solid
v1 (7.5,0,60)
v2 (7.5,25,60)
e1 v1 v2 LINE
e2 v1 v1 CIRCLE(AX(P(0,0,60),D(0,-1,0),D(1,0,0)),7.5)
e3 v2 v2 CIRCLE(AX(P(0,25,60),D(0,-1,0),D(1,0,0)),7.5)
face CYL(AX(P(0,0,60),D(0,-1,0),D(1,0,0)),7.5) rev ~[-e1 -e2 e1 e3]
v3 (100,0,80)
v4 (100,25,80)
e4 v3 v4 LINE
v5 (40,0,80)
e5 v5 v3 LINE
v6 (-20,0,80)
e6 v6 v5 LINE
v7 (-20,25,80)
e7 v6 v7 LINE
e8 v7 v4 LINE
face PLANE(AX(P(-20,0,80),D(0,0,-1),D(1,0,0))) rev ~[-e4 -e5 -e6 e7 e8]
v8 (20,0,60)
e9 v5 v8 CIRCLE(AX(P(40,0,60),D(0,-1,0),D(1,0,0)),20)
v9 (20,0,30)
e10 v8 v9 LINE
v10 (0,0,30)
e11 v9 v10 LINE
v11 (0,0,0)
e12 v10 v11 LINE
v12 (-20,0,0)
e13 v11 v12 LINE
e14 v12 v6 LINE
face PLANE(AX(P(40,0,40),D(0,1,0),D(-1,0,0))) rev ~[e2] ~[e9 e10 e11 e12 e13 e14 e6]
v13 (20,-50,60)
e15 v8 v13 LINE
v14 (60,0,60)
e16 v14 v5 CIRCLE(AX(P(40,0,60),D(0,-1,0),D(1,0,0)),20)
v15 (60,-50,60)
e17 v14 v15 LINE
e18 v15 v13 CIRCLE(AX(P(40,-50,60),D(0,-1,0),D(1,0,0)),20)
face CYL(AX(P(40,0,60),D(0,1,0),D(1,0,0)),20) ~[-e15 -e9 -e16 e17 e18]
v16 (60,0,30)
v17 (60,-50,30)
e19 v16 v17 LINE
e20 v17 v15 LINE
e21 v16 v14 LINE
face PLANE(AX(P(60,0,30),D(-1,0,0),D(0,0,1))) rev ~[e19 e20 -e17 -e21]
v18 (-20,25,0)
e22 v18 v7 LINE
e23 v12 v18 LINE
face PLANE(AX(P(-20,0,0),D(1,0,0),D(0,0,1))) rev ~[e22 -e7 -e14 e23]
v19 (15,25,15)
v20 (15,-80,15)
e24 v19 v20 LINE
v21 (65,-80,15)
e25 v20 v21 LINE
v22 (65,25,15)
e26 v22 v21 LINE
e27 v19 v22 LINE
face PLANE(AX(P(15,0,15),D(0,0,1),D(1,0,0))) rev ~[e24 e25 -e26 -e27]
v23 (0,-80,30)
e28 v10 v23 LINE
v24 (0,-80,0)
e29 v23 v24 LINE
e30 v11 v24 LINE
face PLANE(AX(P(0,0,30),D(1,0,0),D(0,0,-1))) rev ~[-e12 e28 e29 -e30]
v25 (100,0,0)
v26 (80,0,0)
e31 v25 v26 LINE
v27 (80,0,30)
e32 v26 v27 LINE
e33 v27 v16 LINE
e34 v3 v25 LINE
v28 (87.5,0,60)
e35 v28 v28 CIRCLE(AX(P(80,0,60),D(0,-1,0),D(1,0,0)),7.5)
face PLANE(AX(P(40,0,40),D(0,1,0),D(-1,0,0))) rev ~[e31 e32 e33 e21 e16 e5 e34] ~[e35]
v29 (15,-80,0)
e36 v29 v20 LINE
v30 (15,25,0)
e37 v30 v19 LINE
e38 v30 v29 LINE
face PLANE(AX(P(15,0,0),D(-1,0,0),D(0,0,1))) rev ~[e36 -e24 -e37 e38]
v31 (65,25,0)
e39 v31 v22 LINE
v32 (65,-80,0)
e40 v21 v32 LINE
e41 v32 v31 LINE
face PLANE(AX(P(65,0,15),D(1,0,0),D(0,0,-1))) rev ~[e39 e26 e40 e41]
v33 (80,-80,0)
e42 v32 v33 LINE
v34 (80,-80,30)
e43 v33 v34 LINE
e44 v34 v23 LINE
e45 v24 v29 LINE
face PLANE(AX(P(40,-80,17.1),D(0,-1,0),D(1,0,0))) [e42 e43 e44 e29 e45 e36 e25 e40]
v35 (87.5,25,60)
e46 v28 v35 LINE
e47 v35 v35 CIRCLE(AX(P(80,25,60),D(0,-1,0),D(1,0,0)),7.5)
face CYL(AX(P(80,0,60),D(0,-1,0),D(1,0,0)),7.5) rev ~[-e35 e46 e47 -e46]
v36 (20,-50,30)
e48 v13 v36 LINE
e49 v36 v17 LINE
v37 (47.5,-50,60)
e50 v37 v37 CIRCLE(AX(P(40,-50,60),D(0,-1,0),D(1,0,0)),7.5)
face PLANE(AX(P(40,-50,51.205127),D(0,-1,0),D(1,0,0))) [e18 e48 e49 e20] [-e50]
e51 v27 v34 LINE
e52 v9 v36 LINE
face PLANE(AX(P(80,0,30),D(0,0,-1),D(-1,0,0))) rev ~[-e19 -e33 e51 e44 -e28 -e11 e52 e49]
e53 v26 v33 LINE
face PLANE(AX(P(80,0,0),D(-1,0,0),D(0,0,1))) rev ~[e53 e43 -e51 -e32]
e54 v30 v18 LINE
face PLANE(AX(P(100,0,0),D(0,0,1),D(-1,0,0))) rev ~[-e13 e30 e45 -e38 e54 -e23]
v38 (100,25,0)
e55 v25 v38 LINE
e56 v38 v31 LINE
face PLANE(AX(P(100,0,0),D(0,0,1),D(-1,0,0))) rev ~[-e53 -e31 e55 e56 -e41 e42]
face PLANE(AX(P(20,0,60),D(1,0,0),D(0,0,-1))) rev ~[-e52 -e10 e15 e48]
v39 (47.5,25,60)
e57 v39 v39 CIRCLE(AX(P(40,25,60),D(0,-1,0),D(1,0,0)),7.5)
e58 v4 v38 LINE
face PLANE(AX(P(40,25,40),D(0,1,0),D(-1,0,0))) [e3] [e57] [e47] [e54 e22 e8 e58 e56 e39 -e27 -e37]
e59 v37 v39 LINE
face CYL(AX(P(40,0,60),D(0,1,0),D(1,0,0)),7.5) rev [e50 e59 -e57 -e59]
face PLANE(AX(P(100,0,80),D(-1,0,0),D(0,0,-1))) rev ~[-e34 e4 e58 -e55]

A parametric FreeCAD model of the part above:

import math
import FreeCAD as App
import Part
import Sketcher
Q = App.Units.Quantity

doc = App.newDocument("Part")
body = doc.addObject("PartDesign::Body", "Body")

sketch1 = body.newObject("Sketcher::SketchObject", "Sketch")
sketch1.AttachmentSupport = (doc.getObject("XZ_Plane"), [""])
sketch1.MapMode = "FlatFace"
sketch1.addGeometry([
    Part.LineSegment(App.Vector(0, 30, 0), App.Vector(0, 0, 0)),
    Part.LineSegment(App.Vector(0, 0, 0), App.Vector(15, 0, 0)),
    Part.LineSegment(App.Vector(15, 0, 0), App.Vector(15, 15, 0)),
    Part.LineSegment(App.Vector(15, 15, 0), App.Vector(65, 15, 0)),
    Part.LineSegment(App.Vector(65, 15, 0), App.Vector(65, 0, 0)),
    Part.LineSegment(App.Vector(65, 0, 0), App.Vector(80, 0, 0)),
    Part.LineSegment(App.Vector(80, 0, 0), App.Vector(80, 30, 0)),
    Part.LineSegment(App.Vector(80, 30, 0), App.Vector(0, 30, 0)),
], False)
sketch1.addConstraint([
    Sketcher.Constraint("Coincident", 0, 2, 1, 1),
    Sketcher.Constraint("Coincident", 1, 2, 2, 1),
    Sketcher.Constraint("Coincident", 2, 2, 3, 1),
    Sketcher.Constraint("Coincident", 3, 2, 4, 1),
    Sketcher.Constraint("Coincident", 4, 2, 5, 1),
    Sketcher.Constraint("Coincident", 5, 2, 6, 1),
    Sketcher.Constraint("Coincident", 6, 2, 7, 1),
    Sketcher.Constraint("Coincident", 7, 2, 0, 1),
    Sketcher.Constraint("Vertical", 0),
    Sketcher.Constraint("Horizontal", 1),
    Sketcher.Constraint("Vertical", 2),
    Sketcher.Constraint("Horizontal", 3),
    Sketcher.Constraint("Vertical", 4),
    Sketcher.Constraint("Horizontal", 5),
    Sketcher.Constraint("Vertical", 6),
    Sketcher.Constraint("Horizontal", 7),
    Sketcher.Constraint("Coincident", 0, 2, -1, 1),
    Sketcher.Constraint("PointOnObject", 4, 2, -1),
    Sketcher.Constraint("Equal", 1, 5),
    Sketcher.Constraint("Equal", 5, 2),
    Sketcher.Constraint("DistanceX", 1, 1, 1, 2, Q("15 mm")),
    Sketcher.Constraint("DistanceX", 3, 1, 3, 2, Q("50 mm")),
    Sketcher.Constraint("DistanceY", 0, 2, 0, 1, Q("30 mm")),
])
pad1 = body.newObject("PartDesign::Pad", "Pad")
pad1.Profile = sketch1
pad1.Length = 80

sketch2 = body.newObject("Sketcher::SketchObject", "Sketch001")
sketch2.AttachmentSupport = (doc.getObject("XZ_Plane"), [""])
sketch2.MapMode = "FlatFace"
sketch2.addGeometry([
    Part.LineSegment(App.Vector(100, 0, 0), App.Vector(-20, 0, 0)),
    Part.LineSegment(App.Vector(-20, 0, 0), App.Vector(-20, 80, 0)),
    Part.LineSegment(App.Vector(-20, 80, 0), App.Vector(100, 80, 0)),
    Part.LineSegment(App.Vector(100, 80, 0), App.Vector(100, 0, 0)),
], False)
sketch2.addConstraint([
    Sketcher.Constraint("Coincident", 0, 2, 1, 1),
    Sketcher.Constraint("Coincident", 1, 2, 2, 1),
    Sketcher.Constraint("Coincident", 2, 2, 3, 1),
    Sketcher.Constraint("Coincident", 3, 2, 0, 1),
    Sketcher.Constraint("Horizontal", 0),
    Sketcher.Constraint("Vertical", 1),
    Sketcher.Constraint("Horizontal", 2),
    Sketcher.Constraint("Vertical", 3),
    Sketcher.Constraint("PointOnObject", 0, 2, -1),
    Sketcher.Constraint("DistanceX", 0, 2, 0, 1, Q("120 mm")),
    Sketcher.Constraint("DistanceY", 1, 1, 1, 2, Q("80 mm")),
    Sketcher.Constraint("DistanceX", 0, 2, -1, 1, Q("20 mm")),
])
pad2 = body.newObject("PartDesign::Pad", "Pad001")
pad2.Profile = sketch2
pad2.Length = 25
pad2.Reversed = True

sketch3 = body.newObject("Sketcher::SketchObject", "Sketch002")
sketch3.AttachmentSupport = (doc.getObject("XZ_Plane"), [""])
sketch3.MapMode = "FlatFace"
sketch3.addGeometry([
    Part.LineSegment(App.Vector(20, 30, 0), App.Vector(60, 30, 0)),
    Part.LineSegment(App.Vector(60, 30, 0), App.Vector(60, 60, 0)),
    Part.ArcOfCircle(Part.Circle(App.Vector(40, 60, 0), App.Vector(0, 0, 1), 20), math.radians(0), math.radians(180)),
    Part.LineSegment(App.Vector(20, 60, 0), App.Vector(20, 30, 0)),
    Part.Circle(App.Vector(40, 60, 0), App.Vector(0, 0, 1), 8),
], False)
sketch3.addConstraint([
    Sketcher.Constraint("Coincident", 0, 2, 1, 1),
    Sketcher.Constraint("Tangent", 1, 2, 2, 1),
    Sketcher.Constraint("Tangent", 2, 2, 3, 1),
    Sketcher.Constraint("Coincident", 3, 2, 0, 1),
    Sketcher.Constraint("Horizontal", 0),
    Sketcher.Constraint("Vertical", 1),
    Sketcher.Constraint("Vertical", 3),
    Sketcher.Constraint("Coincident", 4, 3, 2, 3),
    Sketcher.Constraint("Diameter", 4, Q("15 mm")),
    Sketcher.Constraint("Radius", 2, Q("20 mm")),
    Sketcher.Constraint("DistanceY", 1, 1, 1, 2, Q("30 mm")),
    Sketcher.Constraint("DistanceX", -1, 1, 2, 3, Q("40 mm")),
    Sketcher.Constraint("DistanceY", -1, 1, 2, 3, Q("60 mm")),
])
pad3 = body.newObject("PartDesign::Pad", "Pad002")
pad3.Profile = sketch3
pad3.Length = 50

sketch4 = body.newObject("Sketcher::SketchObject", "Sketch003")
sketch4.AttachmentSupport = (doc.getObject("XZ_Plane"), [""])
sketch4.MapMode = "FlatFace"
sketch4.addGeometry([
    Part.Circle(App.Vector(80, 60, 0), App.Vector(0, 0, 1), 8),
    Part.Circle(App.Vector(0, 60, 0), App.Vector(0, 0, 1), 8),
], False)
sketch4.addConstraint([
    Sketcher.Constraint("Equal", 0, 1),
    Sketcher.Constraint("PointOnObject", 1, 3, -2),
    Sketcher.Constraint("Horizontal", 0, 3, 1, 3),
    Sketcher.Constraint("Diameter", 0, Q("15 mm")),
    Sketcher.Constraint("DistanceX", -1, 1, 0, 3, Q("80 mm")),
    Sketcher.Constraint("DistanceY", -1, 1, 0, 3, Q("60 mm")),
])
pocket1 = body.newObject("PartDesign::Pocket", "Pocket")
pocket1.Profile = sketch4
pocket1.Type = "ThroughAll"

sketch5 = body.newObject("Sketcher::SketchObject", "Sketch004")
sketch5.AttachmentSupport = (doc.getObject("XZ_Plane"), [""])
sketch5.MapMode = "FlatFace"
sketch5.addGeometry([
    Part.LineSegment(App.Vector(15, 15, 0), App.Vector(15, 0, 0)),
    Part.LineSegment(App.Vector(15, 0, 0), App.Vector(65, 0, 0)),
    Part.LineSegment(App.Vector(65, 0, 0), App.Vector(65, 15, 0)),
    Part.LineSegment(App.Vector(65, 15, 0), App.Vector(15, 15, 0)),
], False)
sketch5.addConstraint([
    Sketcher.Constraint("Coincident", 0, 2, 1, 1),
    Sketcher.Constraint("Coincident", 1, 2, 2, 1),
    Sketcher.Constraint("Coincident", 2, 2, 3, 1),
    Sketcher.Constraint("Coincident", 3, 2, 0, 1),
    Sketcher.Constraint("Vertical", 0),
    Sketcher.Constraint("Horizontal", 1),
    Sketcher.Constraint("Vertical", 2),
    Sketcher.Constraint("Horizontal", 3),
    Sketcher.Constraint("PointOnObject", 0, 2, -1),
    Sketcher.Constraint("DistanceX", 1, 1, 1, 2, Q("50 mm")),
    Sketcher.Constraint("DistanceY", 0, 2, 0, 1, Q("15 mm")),
    Sketcher.Constraint("DistanceX", -1, 1, 0, 2, Q("15 mm")),
])
pocket2 = body.newObject("PartDesign::Pocket", "Pocket001")
pocket2.Profile = sketch5
pocket2.Type = "ThroughAll"

sketch6 = body.newObject("Sketcher::SketchObject", "Sketch005")
sketch6.AttachmentSupport = (doc.getObject("XZ_Plane"), [""])
sketch6.MapMode = "FlatFace"
sketch6.addGeometry(Part.Circle(App.Vector(40, 60, 0), App.Vector(0, 0, 1), 8), False)
sketch6.addConstraint([
    Sketcher.Constraint("Diameter", 0, Q("15 mm")),
    Sketcher.Constraint("DistanceX", -1, 1, 0, 3, Q("40 mm")),
    Sketcher.Constraint("DistanceY", -1, 1, 0, 3, Q("60 mm")),
])
pocket3 = body.newObject("PartDesign::Pocket", "Pocket002")
pocket3.Profile = sketch6
pocket3.Type = "ThroughAll"

doc.recompute()
